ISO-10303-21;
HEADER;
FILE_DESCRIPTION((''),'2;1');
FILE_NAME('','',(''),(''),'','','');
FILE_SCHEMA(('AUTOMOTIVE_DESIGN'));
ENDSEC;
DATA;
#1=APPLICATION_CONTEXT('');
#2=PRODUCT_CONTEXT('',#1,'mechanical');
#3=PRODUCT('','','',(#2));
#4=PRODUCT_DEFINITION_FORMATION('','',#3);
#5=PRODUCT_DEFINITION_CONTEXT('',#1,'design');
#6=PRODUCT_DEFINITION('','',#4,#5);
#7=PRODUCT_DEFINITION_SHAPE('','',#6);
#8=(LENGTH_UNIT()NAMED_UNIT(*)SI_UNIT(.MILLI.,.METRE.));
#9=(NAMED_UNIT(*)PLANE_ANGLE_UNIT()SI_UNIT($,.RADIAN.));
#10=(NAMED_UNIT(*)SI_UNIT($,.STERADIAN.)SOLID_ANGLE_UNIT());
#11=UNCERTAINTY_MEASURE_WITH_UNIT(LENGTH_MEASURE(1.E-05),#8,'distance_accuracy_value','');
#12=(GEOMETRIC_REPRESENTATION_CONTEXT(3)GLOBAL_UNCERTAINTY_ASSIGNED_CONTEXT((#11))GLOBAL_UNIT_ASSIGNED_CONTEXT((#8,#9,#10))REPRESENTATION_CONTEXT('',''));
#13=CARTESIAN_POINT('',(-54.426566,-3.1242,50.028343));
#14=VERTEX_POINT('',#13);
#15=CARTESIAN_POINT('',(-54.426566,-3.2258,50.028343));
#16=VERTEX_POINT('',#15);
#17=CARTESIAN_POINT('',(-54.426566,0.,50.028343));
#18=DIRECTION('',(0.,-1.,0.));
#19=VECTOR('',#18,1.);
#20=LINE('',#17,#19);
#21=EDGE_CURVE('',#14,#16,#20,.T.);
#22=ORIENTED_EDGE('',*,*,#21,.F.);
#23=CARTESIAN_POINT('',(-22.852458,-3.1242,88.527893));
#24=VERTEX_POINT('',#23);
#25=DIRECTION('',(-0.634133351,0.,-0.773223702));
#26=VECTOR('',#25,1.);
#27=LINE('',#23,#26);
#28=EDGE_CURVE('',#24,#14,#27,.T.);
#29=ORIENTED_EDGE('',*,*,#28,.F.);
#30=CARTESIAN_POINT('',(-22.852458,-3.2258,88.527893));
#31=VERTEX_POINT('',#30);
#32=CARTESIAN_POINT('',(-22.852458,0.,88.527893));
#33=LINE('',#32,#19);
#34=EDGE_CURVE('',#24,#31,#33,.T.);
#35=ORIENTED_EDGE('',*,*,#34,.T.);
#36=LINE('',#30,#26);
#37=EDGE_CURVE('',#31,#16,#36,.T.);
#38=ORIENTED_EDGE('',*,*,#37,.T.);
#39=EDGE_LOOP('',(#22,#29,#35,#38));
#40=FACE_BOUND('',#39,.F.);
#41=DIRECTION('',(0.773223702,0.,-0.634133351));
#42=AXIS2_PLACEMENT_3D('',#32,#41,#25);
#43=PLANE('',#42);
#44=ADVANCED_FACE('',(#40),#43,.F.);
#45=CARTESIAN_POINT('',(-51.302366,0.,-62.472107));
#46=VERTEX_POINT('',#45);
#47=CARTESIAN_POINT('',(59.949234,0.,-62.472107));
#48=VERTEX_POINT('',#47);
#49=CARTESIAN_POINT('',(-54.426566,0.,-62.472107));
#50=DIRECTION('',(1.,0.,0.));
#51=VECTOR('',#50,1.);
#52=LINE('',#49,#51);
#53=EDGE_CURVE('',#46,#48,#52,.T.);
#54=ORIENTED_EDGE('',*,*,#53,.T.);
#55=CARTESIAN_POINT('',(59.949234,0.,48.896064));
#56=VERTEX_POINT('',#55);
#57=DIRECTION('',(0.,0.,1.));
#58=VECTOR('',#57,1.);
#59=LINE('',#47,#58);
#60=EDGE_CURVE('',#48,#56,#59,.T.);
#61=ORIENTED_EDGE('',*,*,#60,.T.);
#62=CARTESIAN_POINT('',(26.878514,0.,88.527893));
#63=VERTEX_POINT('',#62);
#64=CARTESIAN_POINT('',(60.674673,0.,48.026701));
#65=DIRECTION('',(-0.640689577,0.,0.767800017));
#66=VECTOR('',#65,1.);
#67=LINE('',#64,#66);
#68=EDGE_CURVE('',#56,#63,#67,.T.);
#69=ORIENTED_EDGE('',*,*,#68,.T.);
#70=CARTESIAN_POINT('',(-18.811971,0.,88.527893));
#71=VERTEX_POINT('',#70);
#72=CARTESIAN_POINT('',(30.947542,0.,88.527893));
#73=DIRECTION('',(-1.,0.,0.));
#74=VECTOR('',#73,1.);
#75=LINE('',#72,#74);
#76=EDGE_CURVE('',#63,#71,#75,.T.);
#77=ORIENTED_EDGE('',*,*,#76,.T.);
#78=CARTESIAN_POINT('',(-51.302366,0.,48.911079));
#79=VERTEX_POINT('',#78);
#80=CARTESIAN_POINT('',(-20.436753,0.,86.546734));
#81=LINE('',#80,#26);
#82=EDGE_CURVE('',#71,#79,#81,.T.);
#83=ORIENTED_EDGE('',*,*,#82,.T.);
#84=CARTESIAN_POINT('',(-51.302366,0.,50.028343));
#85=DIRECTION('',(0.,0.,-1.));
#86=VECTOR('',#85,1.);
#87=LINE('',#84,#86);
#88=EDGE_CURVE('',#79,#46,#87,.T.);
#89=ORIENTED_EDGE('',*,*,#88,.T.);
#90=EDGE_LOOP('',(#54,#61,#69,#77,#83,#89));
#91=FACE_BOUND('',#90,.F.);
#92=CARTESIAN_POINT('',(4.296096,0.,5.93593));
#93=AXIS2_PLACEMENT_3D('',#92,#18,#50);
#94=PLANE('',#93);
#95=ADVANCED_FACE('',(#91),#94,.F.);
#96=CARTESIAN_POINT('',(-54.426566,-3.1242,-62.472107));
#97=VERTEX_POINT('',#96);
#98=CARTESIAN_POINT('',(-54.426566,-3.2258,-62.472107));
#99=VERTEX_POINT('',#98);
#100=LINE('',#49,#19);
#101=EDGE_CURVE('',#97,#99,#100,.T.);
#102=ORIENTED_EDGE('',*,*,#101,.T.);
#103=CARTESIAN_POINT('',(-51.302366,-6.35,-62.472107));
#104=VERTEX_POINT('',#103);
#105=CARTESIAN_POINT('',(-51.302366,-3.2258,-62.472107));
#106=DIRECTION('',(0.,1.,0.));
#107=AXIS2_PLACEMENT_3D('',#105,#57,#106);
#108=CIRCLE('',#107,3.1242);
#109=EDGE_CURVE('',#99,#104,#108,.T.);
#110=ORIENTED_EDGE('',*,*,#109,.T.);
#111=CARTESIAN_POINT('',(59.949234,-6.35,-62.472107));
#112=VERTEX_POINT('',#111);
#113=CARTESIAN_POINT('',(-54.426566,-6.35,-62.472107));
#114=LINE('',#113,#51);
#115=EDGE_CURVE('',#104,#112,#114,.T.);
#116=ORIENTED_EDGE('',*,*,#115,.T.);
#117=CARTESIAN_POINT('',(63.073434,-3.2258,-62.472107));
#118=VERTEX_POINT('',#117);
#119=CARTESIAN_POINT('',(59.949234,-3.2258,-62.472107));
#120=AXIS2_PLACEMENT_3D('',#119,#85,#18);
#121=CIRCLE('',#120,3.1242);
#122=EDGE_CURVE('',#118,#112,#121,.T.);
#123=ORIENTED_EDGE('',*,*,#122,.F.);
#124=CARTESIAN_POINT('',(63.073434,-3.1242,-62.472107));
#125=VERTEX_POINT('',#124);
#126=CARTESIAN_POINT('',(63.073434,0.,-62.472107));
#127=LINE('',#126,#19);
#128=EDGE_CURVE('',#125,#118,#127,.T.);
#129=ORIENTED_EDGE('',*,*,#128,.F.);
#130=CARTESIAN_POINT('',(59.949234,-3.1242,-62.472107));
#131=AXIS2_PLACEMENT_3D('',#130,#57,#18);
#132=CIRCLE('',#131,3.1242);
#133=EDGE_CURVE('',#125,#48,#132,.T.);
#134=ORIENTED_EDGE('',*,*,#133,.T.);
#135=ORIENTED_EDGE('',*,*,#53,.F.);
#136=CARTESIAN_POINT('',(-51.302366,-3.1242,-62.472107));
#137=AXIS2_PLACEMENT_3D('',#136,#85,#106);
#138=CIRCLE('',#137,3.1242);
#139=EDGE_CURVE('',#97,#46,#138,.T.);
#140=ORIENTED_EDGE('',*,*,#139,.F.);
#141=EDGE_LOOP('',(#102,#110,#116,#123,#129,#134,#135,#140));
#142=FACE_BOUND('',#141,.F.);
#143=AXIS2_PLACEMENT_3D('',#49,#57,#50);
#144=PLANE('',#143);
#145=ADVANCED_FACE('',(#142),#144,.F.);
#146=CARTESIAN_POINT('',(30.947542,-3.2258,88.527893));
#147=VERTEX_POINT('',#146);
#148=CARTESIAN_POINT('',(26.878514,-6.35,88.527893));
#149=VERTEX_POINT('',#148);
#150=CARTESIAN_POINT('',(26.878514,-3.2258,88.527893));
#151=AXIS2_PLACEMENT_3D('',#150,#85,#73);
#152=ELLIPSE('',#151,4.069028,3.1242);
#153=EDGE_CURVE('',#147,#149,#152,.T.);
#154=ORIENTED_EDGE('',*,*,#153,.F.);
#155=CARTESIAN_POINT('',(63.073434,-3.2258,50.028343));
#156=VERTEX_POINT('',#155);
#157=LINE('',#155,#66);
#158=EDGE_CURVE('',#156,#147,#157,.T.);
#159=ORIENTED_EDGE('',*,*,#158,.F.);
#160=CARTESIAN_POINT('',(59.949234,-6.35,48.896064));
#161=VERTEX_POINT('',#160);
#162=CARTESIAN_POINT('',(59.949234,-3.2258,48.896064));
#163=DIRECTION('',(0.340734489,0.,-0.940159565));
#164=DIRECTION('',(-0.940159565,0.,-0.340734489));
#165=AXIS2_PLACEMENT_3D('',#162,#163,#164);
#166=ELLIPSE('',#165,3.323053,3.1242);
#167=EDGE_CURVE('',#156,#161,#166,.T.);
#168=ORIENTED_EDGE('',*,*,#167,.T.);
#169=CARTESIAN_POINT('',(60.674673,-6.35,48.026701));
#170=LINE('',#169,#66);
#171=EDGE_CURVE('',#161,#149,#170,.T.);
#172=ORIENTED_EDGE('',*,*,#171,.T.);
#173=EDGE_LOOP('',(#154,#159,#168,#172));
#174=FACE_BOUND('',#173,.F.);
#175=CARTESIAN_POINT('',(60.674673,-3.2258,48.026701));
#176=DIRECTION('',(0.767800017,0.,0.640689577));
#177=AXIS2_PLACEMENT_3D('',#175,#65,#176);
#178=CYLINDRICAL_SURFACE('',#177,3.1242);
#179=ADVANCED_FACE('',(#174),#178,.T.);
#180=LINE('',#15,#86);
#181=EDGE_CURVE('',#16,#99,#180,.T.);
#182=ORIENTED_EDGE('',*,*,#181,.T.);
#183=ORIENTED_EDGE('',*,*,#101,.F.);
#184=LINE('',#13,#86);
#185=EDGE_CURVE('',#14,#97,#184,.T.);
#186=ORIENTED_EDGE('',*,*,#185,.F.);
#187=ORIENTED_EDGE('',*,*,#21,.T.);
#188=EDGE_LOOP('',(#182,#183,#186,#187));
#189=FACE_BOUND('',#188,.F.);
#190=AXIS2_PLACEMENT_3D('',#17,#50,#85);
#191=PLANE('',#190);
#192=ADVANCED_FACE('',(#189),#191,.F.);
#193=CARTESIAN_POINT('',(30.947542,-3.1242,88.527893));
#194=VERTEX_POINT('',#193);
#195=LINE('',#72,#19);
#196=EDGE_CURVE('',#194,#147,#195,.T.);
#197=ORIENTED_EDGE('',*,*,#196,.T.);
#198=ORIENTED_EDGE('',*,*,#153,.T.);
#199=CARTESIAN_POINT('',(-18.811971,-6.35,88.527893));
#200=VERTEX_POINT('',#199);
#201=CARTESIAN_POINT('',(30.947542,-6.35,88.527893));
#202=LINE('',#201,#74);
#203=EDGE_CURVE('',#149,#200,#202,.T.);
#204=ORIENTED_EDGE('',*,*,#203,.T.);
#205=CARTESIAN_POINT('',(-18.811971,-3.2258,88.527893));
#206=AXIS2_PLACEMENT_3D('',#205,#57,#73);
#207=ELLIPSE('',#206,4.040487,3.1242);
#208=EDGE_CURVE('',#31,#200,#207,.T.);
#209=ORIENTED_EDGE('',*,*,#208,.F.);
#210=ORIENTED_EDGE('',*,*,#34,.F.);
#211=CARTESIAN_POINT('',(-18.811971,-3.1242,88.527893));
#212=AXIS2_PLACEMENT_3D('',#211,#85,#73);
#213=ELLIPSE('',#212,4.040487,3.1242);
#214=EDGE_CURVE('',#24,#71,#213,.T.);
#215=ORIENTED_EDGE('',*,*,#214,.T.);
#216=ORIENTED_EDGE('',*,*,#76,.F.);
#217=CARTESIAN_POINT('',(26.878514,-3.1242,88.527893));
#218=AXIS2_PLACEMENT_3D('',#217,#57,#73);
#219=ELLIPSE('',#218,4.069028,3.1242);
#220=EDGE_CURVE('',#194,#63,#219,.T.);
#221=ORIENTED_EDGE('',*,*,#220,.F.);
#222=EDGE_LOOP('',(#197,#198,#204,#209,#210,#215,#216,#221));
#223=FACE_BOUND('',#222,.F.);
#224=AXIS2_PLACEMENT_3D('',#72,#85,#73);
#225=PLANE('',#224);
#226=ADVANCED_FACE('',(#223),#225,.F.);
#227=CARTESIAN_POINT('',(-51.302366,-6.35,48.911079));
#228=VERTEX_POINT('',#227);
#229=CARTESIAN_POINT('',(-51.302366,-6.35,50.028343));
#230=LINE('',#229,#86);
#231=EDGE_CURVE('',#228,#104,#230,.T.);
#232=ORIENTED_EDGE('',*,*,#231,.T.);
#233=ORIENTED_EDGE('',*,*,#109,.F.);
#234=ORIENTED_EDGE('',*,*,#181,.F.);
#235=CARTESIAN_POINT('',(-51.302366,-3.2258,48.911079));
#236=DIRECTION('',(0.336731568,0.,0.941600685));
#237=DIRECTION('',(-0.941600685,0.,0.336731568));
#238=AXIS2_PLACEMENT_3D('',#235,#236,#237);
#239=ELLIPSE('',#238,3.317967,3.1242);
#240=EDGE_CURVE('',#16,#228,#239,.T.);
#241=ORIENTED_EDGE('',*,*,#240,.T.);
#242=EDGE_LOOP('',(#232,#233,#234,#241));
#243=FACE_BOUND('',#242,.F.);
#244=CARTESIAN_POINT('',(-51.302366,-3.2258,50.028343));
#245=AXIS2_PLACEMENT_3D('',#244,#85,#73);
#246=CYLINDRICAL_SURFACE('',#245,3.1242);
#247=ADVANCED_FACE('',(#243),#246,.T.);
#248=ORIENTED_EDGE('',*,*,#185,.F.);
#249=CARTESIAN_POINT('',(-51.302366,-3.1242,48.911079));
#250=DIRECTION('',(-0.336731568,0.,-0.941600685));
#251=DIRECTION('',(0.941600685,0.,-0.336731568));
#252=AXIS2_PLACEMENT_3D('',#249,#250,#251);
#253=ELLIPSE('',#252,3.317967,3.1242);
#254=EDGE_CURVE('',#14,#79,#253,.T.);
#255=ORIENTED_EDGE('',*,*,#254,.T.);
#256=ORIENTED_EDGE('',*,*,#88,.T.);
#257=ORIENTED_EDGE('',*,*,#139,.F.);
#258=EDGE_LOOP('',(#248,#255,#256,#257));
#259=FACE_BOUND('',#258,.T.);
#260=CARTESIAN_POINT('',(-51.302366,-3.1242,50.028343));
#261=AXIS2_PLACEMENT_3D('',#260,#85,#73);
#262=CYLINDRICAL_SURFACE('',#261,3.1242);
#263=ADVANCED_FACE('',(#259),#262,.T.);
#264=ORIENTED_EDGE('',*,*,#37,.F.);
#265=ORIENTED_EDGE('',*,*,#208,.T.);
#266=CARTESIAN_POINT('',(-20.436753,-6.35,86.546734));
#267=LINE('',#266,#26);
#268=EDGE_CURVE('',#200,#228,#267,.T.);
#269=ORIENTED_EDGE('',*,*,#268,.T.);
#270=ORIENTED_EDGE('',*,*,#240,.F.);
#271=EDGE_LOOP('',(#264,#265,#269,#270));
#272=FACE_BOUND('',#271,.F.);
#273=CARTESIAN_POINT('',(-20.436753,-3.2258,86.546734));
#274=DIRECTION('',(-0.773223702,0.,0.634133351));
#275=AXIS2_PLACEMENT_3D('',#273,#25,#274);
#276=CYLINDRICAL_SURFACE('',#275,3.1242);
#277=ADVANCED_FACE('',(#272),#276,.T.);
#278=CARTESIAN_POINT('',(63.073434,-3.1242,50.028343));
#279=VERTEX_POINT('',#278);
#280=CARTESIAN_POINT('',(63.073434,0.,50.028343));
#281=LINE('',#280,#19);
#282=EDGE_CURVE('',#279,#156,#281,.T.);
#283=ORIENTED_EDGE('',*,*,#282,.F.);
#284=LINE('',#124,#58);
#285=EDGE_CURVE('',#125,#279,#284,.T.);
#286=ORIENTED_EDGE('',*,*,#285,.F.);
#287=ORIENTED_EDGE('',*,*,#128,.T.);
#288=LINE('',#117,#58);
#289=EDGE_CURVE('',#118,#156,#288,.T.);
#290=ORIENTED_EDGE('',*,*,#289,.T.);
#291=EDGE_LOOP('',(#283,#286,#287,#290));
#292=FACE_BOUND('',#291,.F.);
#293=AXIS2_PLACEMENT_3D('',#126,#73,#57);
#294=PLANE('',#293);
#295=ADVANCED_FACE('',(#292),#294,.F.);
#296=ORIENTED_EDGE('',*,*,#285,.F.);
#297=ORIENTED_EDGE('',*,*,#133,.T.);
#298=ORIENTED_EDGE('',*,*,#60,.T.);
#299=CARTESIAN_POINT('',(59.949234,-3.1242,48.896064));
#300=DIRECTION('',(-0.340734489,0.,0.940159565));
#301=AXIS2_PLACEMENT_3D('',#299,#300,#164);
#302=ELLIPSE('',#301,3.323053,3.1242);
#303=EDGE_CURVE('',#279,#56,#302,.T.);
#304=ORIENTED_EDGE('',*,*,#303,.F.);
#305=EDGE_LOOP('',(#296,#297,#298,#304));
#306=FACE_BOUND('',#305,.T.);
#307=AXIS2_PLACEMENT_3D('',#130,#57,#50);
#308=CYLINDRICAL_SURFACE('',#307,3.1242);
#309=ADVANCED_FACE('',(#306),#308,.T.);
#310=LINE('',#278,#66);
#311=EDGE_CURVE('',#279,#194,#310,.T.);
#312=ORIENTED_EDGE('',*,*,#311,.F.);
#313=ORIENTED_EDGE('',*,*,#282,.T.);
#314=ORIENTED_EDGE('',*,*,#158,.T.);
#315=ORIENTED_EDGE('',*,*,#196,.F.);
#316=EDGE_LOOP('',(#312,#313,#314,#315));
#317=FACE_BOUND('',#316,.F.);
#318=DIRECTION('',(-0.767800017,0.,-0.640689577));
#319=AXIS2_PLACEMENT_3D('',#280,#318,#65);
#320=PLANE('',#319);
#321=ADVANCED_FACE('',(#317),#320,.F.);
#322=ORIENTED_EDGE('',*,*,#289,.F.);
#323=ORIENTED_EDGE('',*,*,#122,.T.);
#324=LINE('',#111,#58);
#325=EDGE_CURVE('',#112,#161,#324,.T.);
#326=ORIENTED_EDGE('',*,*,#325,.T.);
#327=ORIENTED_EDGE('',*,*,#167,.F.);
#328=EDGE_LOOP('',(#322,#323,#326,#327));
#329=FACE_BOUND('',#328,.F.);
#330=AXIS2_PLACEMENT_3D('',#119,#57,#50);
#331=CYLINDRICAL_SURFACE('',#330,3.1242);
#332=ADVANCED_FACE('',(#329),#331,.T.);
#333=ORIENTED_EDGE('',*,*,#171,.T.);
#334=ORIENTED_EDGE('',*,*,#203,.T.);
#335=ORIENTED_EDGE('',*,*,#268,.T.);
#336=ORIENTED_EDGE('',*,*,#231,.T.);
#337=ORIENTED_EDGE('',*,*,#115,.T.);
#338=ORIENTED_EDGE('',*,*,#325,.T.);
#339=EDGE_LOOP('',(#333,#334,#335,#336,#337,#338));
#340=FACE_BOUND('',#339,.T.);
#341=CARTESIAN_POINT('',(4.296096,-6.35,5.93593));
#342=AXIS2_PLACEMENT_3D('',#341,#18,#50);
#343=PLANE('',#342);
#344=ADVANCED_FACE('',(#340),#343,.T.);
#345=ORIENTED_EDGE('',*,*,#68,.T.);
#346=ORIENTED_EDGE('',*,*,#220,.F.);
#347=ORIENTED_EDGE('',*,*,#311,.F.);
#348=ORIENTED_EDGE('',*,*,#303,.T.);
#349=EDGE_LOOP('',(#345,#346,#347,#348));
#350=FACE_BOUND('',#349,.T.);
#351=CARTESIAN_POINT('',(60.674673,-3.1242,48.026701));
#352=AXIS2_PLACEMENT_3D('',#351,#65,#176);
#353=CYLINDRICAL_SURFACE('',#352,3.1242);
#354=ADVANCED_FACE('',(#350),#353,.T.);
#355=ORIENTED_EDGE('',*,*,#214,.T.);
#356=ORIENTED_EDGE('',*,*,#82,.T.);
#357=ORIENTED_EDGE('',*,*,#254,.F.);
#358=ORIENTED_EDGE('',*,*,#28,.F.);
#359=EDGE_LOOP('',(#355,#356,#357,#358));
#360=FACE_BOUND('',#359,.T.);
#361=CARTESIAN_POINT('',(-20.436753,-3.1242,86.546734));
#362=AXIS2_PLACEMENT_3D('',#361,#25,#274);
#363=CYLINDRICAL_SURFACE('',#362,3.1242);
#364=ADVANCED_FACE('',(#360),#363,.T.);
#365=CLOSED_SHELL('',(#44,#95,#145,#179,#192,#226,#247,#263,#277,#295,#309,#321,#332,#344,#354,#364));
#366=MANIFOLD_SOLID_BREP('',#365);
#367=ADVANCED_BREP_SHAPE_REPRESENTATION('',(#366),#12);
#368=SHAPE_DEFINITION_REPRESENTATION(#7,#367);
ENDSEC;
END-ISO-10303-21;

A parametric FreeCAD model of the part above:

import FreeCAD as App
import Part
import Sketcher


def edges_at(feature, points):
    """Names of the edges that pass closest to the given points."""
    edges = feature.Shape.Edges
    near = lambda p: min(range(len(edges)), key=lambda i: edges[i].distToShape(Part.Vertex(*p))[0])
    return sorted({f"Edge{near(p) + 1}" for p in points})

doc = App.newDocument("Part")
body = doc.addObject("PartDesign::Body", "Body")

# Sketch on XZ plane
sketch1 = body.newObject("Sketcher::SketchObject", "Sketch")
sketch1.AttachmentSupport = (doc.getObject("XZ_Plane"), [""])
sketch1.MapMode = "FlatFace"
sketch1.addGeometry([
    Part.LineSegment(App.Vector(31, 89, 0), App.Vector(-23, 89, 0)),  # 0
    Part.LineSegment(App.Vector(-23, 89, 0), App.Vector(-54, 50, 0)),  # 1
    Part.LineSegment(App.Vector(-54, 50, 0), App.Vector(-54, -62, 0)),  # 2
    Part.LineSegment(App.Vector(-54, -62, 0), App.Vector(63, -62, 0)),  # 3
    Part.LineSegment(App.Vector(63, -62, 0), App.Vector(63, 50, 0)),  # 4
    Part.LineSegment(App.Vector(63, 50, 0), App.Vector(31, 89, 0)),  # 5
], False)
sketch1.addConstraint([
    Sketcher.Constraint("Coincident", 0, 2, 1, 1),
    Sketcher.Constraint("Coincident", 1, 2, 2, 1),
    Sketcher.Constraint("Coincident", 2, 2, 3, 1),
    Sketcher.Constraint("Coincident", 3, 2, 4, 1),
    Sketcher.Constraint("Coincident", 4, 2, 5, 1),
    Sketcher.Constraint("Coincident", 5, 2, 0, 1),
    Sketcher.Constraint("Horizontal", 0),
    Sketcher.Constraint("Vertical", 2),
    Sketcher.Constraint("Horizontal", 3),
    Sketcher.Constraint("Vertical", 4),
    Sketcher.Constraint("Horizontal", 1, 2, 4, 2),
    Sketcher.Constraint("DistanceX", 0, 2, 0, 1, 53.8),
    Sketcher.Constraint("DistanceX", 3, 1, 3, 2, 117.5),
    Sketcher.Constraint("DistanceY", 2, 2, 0, 2, 151.0),
    Sketcher.Constraint("DistanceY", 2, 2, 2, 1, 112.50045),
    Sketcher.Constraint("Distance", 1, 49.790959),
    Sketcher.Constraint("DistanceX", -1, 1, 5, 2, 30.947542),
    Sketcher.Constraint("DistanceY", -1, 1, 0, 2, 88.527893),
])
pad1 = body.newObject("PartDesign::Pad", "Pad")
pad1.Profile = sketch1
pad1.Length = 6.35
doc.recompute()

fillet = body.newObject("PartDesign::Fillet", "Fillet")
fillet.Base = (pad1, edges_at(pad1, [
    (-54.427, 0, -6.222),
    (-38.64, 0, 69.278),
    (47.01, 0, 69.278),
    (63.073, 0, -6.222),
    (47.01, -6.35, 69.278),
    (-38.64, -6.35, 69.278),
    (-54.427, -6.35, -6.222),
    (63.073, -6.35, -6.222),
]))
fillet.Radius = 3.1242

doc.recompute()
